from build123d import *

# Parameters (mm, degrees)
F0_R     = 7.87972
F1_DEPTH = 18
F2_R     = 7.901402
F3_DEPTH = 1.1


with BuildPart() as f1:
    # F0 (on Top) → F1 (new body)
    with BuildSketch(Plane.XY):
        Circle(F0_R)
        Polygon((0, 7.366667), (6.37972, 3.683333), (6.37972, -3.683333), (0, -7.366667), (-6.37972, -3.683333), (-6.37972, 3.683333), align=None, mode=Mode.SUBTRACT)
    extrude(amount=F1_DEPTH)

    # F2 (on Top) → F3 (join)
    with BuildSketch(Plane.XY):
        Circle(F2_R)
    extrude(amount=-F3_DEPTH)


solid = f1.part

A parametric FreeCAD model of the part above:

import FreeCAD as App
import Part
import Sketcher
from FreeCAD import Vector
Q = App.Units.Quantity


def add_polygon(sketch, points):
    """Adds a closed chain of lines whose ends are joined by coincident constraints."""
    first, n = sketch.GeometryCount, len(points)
    for a, b in zip(points, points[1:] + points[:1]):
        sketch.addGeometry(Part.LineSegment(App.Vector(*a, 0), App.Vector(*b, 0)), False)
    for i in range(n):
        sketch.addConstraint(Sketcher.Constraint("Coincident", first + i, 2, first + (i + 1) % n, 1))

doc = App.newDocument("Part")
body = doc.addObject("PartDesign::Body", "Body")

# Sketch on XY plane
sketch1 = doc.addObject("Sketcher::SketchObject", "Sketch")
body.addObject(sketch1)
sketch1.AttachmentSupport = (doc.XY_Plane, [""])
sketch1.MapMode = "FlatFace"
sketch1.addGeometry(Part.Circle(Vector(0, 0, 0), Vector(0, 0, 1), 8), False)  # 0
add_polygon(sketch1, [(-6, 4), (0, 7), (6, 4), (6, -4), (0, -7), (-6, -4)])  # lines 1-6
sketch1.addConstraint(Sketcher.Constraint("Vertical", 3))
sketch1.addConstraint(Sketcher.Constraint("Vertical", 6))
sketch1.addConstraint(Sketcher.Constraint("Coincident", 0, 3, -1, 1))
sketch1.addConstraint(Sketcher.Constraint("Symmetric", 1, 2, 4, 2, -1, 1))
sketch1.addConstraint(Sketcher.Constraint("Symmetric", 2, 2, 5, 2, -1, 1))
sketch1.addConstraint(Sketcher.Constraint("PointOnObject", 1, 2, -2))
sketch1.addConstraint(Sketcher.Constraint("Parallel", 1, 4))
sketch1.addConstraint(Sketcher.Constraint("Horizontal", 3, 2, 5, 2))
sketch1.addConstraint(Sketcher.Constraint("Angle", 1, Q("30.000006 deg")))
sketch1.addConstraint(Sketcher.Constraint("Diameter", 0, 15.75944))
sketch1.addConstraint(Sketcher.Constraint("DistanceY", 3, 2, 1, 2, 11.05))
sketch1.addConstraint(Sketcher.Constraint("DistanceY", 3, 2, 3, 1, 7.366666))
pad1 = doc.addObject("PartDesign::Pad", "Pad")
body.addObject(pad1)
pad1.Profile = sketch1
pad1.Length = 18

# Sketch on XY plane
sketch2 = doc.addObject("Sketcher::SketchObject", "Sketch001")
body.addObject(sketch2)
sketch2.AttachmentSupport = (doc.XY_Plane, [""])
sketch2.MapMode = "FlatFace"
sketch2.addGeometry(Part.Circle(Vector(0, 0, 0), Vector(0, 0, 1), 8), False)
sketch2.addConstraint(Sketcher.Constraint("Coincident", 0, 3, -1, 1))
sketch2.addConstraint(Sketcher.Constraint("Diameter", 0, 15.802804))
pad2 = doc.addObject("PartDesign::Pad", "Pad001")
body.addObject(pad2)
pad2.Profile = sketch2
pad2.Length = 1.1
pad2.Reversed = True

doc.recompute()
